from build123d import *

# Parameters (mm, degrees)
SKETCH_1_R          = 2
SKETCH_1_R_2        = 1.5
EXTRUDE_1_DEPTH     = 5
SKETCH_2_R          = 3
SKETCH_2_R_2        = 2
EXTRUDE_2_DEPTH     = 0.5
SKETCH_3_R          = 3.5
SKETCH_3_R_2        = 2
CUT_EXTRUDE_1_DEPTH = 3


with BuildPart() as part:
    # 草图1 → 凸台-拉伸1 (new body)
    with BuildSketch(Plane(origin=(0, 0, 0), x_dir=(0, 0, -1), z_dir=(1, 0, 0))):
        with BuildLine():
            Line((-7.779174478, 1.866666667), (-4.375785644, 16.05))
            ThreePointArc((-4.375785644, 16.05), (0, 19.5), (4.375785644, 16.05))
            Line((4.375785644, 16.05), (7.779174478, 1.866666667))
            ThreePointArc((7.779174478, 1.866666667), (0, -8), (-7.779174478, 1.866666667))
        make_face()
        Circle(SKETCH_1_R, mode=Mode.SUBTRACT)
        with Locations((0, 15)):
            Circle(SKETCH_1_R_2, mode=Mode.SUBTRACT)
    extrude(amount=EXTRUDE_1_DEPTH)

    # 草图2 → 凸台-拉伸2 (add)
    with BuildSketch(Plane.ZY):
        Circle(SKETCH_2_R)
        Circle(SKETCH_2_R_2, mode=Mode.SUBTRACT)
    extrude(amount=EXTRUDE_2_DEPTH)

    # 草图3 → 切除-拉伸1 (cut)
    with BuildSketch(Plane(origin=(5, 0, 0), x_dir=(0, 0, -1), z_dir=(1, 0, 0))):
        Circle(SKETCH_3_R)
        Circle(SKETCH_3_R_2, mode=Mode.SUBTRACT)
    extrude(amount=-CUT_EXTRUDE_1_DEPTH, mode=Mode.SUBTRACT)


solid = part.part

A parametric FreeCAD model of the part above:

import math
import FreeCAD as App
import Part
import Sketcher
from FreeCAD import Vector

doc = App.newDocument("Part")
body = doc.addObject("PartDesign::Body", "Body")

# Sketch on YZ plane
sketch1 = body.newObject("Sketcher::SketchObject", "Sketch")
sketch1.AttachmentSupport = (doc.getObject("YZ_Plane"), [""])
sketch1.MapMode = "FlatFace"
sketch1.addGeometry(Part.LineSegment(Vector(16.1, 4.4, 0), Vector(1.9, 7.8, 0)), False)
sketch1.addGeometry(Part.ArcOfCircle(Part.Circle(Vector(0, 0, 0), Vector(0, 0, 1), 8), math.radians(77), math.radians(283)), False)
sketch1.addGeometry(Part.LineSegment(Vector(1.9, -7.8, 0), Vector(16.1, -4.4, 0)), False)
sketch1.addGeometry(Part.ArcOfCircle(Part.Circle(Vector(15, 0, 0), Vector(0, 0, 1), 4.5), math.radians(-77), math.radians(77)), False)
sketch1.addGeometry(Part.Circle(Vector(0, 0, 0), Vector(0, 0, 1), 2), False)
sketch1.addGeometry(Part.Circle(Vector(15, 0, 0), Vector(0, 0, 1), 1.5), False)
sketch1.addConstraint(Sketcher.Constraint("Tangent", 0, 2, 1, 1))
sketch1.addConstraint(Sketcher.Constraint("Tangent", 1, 2, 2, 1))
sketch1.addConstraint(Sketcher.Constraint("Tangent", 2, 2, 3, 1))
sketch1.addConstraint(Sketcher.Constraint("Tangent", 3, 2, 0, 1))
sketch1.addConstraint(Sketcher.Constraint("Coincident", 1, 3, -1, 1))
sketch1.addConstraint(Sketcher.Constraint("Coincident", 4, 3, -1, 1))
sketch1.addConstraint(Sketcher.Constraint("Coincident", 5, 3, 3, 3))
sketch1.addConstraint(Sketcher.Constraint("PointOnObject", 3, 3, -1))
sketch1.addConstraint(Sketcher.Constraint("Diameter", 4, 4.0))
sketch1.addConstraint(Sketcher.Constraint("Diameter", 5, 3.0))
sketch1.addConstraint(Sketcher.Constraint("Radius", 1, 8.0))
sketch1.addConstraint(Sketcher.Constraint("Radius", 3, 4.5))
sketch1.addConstraint(Sketcher.Constraint("DistanceX", -1, 1, 3, 3, 15.0))
pad1 = body.newObject("PartDesign::Pad", "Pad")
pad1.Profile = sketch1
pad1.Length = 5

# Sketch on YZ plane
sketch2 = body.newObject("Sketcher::SketchObject", "Sketch001")
sketch2.AttachmentSupport = (doc.getObject("YZ_Plane"), [""])
sketch2.MapMode = "FlatFace"
sketch2.addGeometry(Part.Circle(Vector(0, 0, 0), Vector(0, 0, 1), 3), False)
sketch2.addGeometry(Part.Circle(Vector(0, 0, 0), Vector(0, 0, 1), 2), False)
sketch2.addConstraint(Sketcher.Constraint("Coincident", 0, 3, -1, 1))
sketch2.addConstraint(Sketcher.Constraint("Coincident", 1, 3, -1, 1))
sketch2.addConstraint(Sketcher.Constraint("Diameter", 0, 6.0))
sketch2.addConstraint(Sketcher.Constraint("Diameter", 1, 4.0))
pad2 = body.newObject("PartDesign::Pad", "Pad001")
pad2.Profile = sketch2
pad2.Length = 0.5
pad2.Reversed = True

# Sketch on YZ plane
sketch3 = body.newObject("Sketcher::SketchObject", "Sketch002")
sketch3.AttachmentSupport = (doc.getObject("YZ_Plane"), [""])
sketch3.MapMode = "FlatFace"
sketch3.AttachmentOffset = App.Placement(Vector(0, 0, 5), App.Rotation())
sketch3.addGeometry(Part.Circle(Vector(0, 0, 0), Vector(0, 0, 1), 3.5), False)
sketch3.addGeometry(Part.Circle(Vector(0, 0, 0), Vector(0, 0, 1), 2), False)
sketch3.addConstraint(Sketcher.Constraint("Coincident", 0, 3, -1, 1))
sketch3.addConstraint(Sketcher.Constraint("Coincident", 1, 3, -1, 1))
sketch3.addConstraint(Sketcher.Constraint("Diameter", 0, 7.0))
sketch3.addConstraint(Sketcher.Constraint("Diameter", 1, 4.0))
pocket1 = body.newObject("PartDesign::Pocket", "Pocket")
pocket1.Profile = sketch3
pocket1.Length = 3

doc.recompute()
